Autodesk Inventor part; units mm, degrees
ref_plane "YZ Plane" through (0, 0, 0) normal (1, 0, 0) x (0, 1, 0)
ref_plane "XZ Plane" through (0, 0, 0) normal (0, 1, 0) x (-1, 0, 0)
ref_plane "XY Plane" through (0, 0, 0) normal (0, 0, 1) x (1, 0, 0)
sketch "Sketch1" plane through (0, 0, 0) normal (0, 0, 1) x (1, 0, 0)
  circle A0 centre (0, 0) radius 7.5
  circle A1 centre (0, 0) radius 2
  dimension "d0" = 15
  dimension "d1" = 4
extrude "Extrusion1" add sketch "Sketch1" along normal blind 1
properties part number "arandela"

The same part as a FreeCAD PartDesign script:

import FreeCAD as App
import Part
import Sketcher
Q = App.Units.Quantity

doc = App.newDocument("Part")
body = doc.addObject("PartDesign::Body", "Body")

# Sketch on XY plane
sketch1 = body.newObject("Sketcher::SketchObject", "Sketch")
sketch1.AttachmentSupport = (doc.getObject("XY_Plane"), [""])
sketch1.MapMode = "FlatFace"
sketch1.addGeometry([
    Part.Circle(App.Vector(0, 0, 0), App.Vector(0, 0, 1), 7.5),
    Part.Circle(App.Vector(0, 0, 0), App.Vector(0, 0, 1), 2),
], False)
sketch1.addConstraint([
    Sketcher.Constraint("Coincident", 0, 3, -1, 1),
    Sketcher.Constraint("Coincident", 1, 3, -1, 1),
    Sketcher.Constraint("Diameter", 0, Q("15 mm")),
    Sketcher.Constraint("Diameter", 1, Q("4 mm")),
])
pad1 = body.newObject("PartDesign::Pad", "Pad")
pad1.Profile = sketch1
pad1.Length = 1

doc.recompute()
